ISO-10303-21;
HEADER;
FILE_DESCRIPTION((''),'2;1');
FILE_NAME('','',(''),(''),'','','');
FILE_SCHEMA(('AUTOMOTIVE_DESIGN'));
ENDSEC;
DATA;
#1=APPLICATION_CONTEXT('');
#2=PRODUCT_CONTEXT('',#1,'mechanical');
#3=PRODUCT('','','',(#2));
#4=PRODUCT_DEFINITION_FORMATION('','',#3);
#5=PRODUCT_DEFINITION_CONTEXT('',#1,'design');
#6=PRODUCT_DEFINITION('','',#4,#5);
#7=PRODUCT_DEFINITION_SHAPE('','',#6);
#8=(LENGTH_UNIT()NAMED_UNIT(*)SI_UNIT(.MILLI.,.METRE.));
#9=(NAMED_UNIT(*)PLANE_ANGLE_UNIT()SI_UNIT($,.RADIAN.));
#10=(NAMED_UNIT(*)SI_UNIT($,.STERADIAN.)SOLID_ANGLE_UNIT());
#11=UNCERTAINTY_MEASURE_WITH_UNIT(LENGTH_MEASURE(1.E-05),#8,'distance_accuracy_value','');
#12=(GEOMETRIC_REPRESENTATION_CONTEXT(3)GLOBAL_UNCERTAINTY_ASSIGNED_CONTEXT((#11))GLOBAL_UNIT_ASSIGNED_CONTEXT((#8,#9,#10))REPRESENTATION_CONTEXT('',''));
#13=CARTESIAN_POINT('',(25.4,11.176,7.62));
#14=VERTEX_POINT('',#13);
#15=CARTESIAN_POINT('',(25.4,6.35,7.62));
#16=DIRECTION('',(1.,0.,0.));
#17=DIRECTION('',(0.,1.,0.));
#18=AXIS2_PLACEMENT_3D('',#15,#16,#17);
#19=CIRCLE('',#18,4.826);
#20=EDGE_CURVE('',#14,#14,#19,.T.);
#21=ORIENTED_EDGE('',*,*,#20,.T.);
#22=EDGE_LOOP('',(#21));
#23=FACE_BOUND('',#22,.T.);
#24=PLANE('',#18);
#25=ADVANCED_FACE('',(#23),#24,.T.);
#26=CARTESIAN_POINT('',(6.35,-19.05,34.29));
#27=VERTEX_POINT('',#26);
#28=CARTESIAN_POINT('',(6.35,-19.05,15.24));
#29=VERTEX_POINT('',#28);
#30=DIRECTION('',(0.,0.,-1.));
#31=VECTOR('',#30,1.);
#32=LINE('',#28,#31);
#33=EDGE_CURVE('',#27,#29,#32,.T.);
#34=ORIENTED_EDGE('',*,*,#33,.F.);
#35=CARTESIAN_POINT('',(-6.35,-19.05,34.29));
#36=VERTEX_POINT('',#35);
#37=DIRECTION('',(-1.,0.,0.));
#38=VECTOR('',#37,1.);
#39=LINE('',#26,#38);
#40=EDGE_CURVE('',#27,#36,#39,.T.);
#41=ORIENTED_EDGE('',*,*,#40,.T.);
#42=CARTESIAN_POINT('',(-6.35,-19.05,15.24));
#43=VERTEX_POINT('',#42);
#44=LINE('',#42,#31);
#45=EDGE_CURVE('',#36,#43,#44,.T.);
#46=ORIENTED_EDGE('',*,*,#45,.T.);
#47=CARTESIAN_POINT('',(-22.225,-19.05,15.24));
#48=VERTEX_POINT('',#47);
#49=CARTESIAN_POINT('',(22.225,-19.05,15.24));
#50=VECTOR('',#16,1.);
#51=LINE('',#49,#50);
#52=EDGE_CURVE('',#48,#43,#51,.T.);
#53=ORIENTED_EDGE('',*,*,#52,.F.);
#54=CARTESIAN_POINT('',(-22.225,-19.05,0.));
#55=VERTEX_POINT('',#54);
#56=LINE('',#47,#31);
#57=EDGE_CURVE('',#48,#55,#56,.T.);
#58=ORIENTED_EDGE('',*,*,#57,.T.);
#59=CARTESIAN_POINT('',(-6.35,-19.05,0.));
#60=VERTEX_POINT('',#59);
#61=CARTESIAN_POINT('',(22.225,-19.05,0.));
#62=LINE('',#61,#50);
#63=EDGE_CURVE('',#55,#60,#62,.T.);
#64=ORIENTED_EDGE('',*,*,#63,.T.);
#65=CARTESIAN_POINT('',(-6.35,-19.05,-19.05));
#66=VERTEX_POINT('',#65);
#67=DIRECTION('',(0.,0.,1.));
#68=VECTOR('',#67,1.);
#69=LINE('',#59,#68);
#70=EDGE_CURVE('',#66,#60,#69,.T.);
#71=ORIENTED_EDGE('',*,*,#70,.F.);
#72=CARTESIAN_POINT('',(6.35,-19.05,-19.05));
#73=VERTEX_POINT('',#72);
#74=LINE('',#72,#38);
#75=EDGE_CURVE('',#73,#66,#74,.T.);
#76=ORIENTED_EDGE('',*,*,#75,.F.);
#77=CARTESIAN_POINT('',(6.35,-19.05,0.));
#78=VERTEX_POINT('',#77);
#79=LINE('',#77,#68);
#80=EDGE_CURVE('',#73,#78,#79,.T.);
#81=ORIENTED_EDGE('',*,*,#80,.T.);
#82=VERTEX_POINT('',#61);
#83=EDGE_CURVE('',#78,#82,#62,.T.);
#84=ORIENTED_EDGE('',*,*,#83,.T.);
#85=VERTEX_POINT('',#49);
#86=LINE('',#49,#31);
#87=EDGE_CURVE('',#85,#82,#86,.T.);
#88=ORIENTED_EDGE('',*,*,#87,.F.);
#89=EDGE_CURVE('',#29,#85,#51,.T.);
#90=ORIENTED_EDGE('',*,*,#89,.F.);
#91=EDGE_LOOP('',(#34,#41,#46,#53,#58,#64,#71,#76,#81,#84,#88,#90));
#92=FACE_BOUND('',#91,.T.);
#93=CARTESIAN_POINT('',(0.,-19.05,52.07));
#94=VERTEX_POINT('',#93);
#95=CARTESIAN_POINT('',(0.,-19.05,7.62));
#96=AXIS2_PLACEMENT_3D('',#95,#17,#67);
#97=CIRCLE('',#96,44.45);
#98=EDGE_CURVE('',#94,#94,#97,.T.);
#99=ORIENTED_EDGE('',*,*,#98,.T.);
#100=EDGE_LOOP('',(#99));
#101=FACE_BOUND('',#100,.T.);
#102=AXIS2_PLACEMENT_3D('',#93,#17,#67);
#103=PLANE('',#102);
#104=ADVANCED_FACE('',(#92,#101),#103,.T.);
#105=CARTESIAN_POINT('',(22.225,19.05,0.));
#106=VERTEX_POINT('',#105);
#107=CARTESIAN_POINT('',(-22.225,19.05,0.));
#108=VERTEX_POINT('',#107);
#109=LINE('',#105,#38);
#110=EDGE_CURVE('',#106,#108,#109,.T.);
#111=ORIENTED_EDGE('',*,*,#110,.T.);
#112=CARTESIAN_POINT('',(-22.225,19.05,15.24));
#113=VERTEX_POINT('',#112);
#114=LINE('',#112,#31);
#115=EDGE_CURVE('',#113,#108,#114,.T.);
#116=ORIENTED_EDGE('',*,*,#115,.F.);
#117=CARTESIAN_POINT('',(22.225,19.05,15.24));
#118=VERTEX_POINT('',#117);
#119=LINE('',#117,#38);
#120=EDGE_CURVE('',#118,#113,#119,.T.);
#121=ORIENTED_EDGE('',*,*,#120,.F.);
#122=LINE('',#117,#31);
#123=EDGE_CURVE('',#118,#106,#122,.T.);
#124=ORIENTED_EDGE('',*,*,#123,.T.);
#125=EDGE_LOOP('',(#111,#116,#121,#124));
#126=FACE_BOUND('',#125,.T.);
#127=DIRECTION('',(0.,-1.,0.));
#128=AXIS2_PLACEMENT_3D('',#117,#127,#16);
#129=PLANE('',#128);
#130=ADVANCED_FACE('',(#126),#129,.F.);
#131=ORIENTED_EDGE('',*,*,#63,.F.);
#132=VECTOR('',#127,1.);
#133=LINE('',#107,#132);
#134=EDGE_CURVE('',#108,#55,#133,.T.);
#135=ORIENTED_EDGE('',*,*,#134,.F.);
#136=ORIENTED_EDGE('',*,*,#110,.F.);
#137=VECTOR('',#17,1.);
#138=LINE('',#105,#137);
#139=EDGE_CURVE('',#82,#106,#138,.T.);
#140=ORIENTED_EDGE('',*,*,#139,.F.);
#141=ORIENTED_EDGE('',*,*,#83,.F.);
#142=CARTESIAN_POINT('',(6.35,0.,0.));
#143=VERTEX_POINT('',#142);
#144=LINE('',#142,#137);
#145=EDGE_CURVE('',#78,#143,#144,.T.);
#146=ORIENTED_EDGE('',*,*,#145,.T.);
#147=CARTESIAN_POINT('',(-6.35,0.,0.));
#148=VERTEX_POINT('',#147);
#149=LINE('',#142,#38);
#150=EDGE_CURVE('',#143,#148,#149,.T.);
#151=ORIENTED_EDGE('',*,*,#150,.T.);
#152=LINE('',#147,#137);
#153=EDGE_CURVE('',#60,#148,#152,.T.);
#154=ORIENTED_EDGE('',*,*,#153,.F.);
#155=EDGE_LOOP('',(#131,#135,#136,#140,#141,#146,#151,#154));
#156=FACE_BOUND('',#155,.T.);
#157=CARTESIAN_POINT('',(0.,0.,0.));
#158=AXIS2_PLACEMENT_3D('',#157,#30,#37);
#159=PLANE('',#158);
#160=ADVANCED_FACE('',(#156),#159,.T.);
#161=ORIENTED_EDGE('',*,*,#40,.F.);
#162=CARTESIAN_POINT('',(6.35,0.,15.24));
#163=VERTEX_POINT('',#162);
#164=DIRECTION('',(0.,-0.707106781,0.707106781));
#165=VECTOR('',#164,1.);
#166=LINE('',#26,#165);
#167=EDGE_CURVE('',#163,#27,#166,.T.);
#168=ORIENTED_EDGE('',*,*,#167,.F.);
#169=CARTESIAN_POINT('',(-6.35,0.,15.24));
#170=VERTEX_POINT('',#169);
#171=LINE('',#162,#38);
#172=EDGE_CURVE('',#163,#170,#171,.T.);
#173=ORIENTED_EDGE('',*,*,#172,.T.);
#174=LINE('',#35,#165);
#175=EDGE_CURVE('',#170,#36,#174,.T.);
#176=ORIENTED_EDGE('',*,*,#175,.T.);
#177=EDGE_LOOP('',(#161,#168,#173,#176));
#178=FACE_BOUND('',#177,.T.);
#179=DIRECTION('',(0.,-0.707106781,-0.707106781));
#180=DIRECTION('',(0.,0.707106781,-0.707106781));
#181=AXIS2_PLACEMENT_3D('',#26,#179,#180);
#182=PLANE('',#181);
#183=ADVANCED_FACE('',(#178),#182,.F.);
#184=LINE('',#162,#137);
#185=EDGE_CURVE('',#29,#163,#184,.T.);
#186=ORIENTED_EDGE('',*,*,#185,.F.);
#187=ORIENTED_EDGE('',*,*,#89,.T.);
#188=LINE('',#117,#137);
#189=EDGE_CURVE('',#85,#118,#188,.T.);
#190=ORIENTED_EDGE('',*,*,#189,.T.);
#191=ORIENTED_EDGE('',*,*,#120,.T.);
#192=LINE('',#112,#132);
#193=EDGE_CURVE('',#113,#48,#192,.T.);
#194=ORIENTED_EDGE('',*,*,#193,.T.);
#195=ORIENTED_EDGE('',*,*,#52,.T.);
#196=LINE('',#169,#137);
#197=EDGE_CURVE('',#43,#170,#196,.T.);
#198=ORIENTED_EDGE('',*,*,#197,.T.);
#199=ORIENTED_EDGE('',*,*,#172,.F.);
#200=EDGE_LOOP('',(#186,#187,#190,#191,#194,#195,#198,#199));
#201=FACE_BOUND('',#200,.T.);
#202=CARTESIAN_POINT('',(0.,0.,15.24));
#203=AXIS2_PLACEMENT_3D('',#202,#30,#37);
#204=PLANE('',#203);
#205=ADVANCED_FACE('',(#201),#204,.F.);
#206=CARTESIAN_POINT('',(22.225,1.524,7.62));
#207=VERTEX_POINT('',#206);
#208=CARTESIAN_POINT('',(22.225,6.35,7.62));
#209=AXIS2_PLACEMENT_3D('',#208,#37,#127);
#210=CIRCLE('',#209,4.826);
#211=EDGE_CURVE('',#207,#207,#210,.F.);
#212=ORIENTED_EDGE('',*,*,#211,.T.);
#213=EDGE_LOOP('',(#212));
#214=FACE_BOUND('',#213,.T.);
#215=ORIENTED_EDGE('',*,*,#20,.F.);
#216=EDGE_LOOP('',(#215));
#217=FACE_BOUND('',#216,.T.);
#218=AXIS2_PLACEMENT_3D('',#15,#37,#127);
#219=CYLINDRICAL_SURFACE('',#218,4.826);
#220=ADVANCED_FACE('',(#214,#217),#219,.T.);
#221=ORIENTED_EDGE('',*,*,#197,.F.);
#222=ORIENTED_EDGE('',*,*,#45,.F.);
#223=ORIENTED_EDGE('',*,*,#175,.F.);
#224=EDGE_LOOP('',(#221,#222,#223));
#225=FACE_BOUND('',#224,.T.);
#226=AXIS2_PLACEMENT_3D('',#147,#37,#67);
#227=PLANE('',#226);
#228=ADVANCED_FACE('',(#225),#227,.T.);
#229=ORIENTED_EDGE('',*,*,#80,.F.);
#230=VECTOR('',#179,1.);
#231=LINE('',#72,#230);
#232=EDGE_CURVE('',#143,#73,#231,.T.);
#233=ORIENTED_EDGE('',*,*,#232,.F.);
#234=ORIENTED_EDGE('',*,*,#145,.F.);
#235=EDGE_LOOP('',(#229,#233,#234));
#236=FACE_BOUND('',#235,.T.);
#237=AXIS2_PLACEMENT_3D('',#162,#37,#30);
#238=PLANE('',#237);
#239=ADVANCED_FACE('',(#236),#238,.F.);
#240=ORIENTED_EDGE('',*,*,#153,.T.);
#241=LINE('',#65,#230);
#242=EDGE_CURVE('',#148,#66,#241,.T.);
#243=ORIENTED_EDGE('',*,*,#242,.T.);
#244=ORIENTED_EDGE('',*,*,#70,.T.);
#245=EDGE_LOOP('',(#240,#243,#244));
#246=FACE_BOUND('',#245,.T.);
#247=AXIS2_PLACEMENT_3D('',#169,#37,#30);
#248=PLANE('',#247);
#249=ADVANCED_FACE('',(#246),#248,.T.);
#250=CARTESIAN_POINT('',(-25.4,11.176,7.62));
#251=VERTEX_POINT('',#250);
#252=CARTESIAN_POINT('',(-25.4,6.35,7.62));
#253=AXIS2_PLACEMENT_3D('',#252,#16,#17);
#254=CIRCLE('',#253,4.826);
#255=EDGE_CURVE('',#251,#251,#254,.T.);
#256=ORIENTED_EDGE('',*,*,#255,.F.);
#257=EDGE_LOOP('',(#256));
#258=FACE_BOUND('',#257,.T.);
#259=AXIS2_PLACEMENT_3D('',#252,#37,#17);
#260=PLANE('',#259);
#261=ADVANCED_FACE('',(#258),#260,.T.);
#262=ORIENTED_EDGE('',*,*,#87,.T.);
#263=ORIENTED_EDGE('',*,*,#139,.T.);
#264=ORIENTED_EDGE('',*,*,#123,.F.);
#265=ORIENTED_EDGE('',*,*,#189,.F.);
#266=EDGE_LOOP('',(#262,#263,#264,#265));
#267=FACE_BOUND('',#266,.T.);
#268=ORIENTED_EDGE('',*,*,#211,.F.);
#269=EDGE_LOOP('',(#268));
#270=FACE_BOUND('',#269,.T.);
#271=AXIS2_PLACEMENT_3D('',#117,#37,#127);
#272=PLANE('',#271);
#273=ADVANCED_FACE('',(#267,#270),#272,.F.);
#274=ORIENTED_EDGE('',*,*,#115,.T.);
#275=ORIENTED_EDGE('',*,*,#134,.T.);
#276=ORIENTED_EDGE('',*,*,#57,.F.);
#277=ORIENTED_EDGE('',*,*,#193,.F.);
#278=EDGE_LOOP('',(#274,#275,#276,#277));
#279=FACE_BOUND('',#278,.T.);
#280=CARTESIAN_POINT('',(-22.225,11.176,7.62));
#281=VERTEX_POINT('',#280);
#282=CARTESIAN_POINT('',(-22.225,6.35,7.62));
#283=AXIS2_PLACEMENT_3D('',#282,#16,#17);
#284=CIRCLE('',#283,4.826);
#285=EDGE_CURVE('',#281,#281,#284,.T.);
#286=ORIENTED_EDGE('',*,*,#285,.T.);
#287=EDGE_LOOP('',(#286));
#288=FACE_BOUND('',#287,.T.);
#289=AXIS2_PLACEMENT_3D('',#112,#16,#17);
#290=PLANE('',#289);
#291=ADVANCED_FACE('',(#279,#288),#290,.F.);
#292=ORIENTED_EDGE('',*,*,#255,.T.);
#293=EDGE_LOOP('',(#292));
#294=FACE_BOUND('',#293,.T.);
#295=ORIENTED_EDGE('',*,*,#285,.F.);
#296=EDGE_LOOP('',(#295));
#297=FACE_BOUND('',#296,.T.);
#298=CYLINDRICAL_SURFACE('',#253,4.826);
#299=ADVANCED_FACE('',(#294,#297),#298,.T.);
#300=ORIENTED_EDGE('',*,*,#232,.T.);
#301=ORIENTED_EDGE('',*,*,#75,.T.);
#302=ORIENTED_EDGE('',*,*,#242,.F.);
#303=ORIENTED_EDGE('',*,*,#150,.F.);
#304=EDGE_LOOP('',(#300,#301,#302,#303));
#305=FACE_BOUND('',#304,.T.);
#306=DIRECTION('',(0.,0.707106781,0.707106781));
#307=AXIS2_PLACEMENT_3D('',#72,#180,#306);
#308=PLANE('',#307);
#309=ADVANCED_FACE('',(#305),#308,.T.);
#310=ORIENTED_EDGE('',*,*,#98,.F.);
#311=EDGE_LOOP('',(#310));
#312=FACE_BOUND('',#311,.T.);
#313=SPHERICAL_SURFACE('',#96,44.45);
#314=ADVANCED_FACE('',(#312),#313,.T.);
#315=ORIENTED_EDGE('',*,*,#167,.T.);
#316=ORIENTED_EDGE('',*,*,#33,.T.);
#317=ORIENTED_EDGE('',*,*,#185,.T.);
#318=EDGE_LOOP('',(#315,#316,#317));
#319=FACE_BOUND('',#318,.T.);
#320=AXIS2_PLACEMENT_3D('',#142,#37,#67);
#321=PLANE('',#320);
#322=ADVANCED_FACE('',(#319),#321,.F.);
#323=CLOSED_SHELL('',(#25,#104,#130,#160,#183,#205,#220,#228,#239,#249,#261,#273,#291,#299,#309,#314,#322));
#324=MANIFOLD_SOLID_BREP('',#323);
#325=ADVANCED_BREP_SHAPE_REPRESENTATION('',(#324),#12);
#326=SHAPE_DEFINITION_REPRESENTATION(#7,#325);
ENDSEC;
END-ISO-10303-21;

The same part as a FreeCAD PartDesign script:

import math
import FreeCAD as App
import Part
import Sketcher
Q = App.Units.Quantity

doc = App.newDocument("Part")
body = doc.addObject("PartDesign::Body", "Body")

# Sketch on XY plane
sketch1 = body.newObject("Sketcher::SketchObject", "Sketch")
sketch1.AttachmentSupport = (doc.getObject("XY_Plane"), [""])
sketch1.MapMode = "FlatFace"
sketch1.addGeometry([
    Part.LineSegment(App.Vector(-22, 19, 0), App.Vector(-22, -19, 0)),
    Part.LineSegment(App.Vector(-22, -19, 0), App.Vector(22, -19, 0)),
    Part.LineSegment(App.Vector(22, -19, 0), App.Vector(22, 19, 0)),
    Part.LineSegment(App.Vector(22, 19, 0), App.Vector(-22, 19, 0)),
], False)
sketch1.addConstraint([
    Sketcher.Constraint("Coincident", 0, 2, 1, 1),
    Sketcher.Constraint("Coincident", 1, 2, 2, 1),
    Sketcher.Constraint("Coincident", 2, 2, 3, 1),
    Sketcher.Constraint("Coincident", 3, 2, 0, 1),
    Sketcher.Constraint("Vertical", 0),
    Sketcher.Constraint("Horizontal", 1),
    Sketcher.Constraint("Vertical", 2),
    Sketcher.Constraint("Horizontal", 3),
    Sketcher.Constraint("Symmetric", 0, 2, 2, 2, -1, 1),
    Sketcher.Constraint("DistanceY", 0, 2, 0, 1, Q("1.5 in")),
    Sketcher.Constraint("DistanceX", 1, 1, 1, 2, Q("1.75 in")),
])
pad1 = body.newObject("PartDesign::Pad", "Pad")
pad1.Profile = sketch1
pad1.Length = Q("0.6 in")

# Sketch on YZ plane
sketch2 = body.newObject("Sketcher::SketchObject", "Sketch001")
sketch2.AttachmentSupport = (doc.getObject("YZ_Plane"), [""])
sketch2.MapMode = "FlatFace"
sketch2.AttachmentOffset = App.Placement(App.Vector(0, 0, 0.875 * 25.4), App.Rotation())
sketch2.addGeometry(Part.Circle(App.Vector(6.3, 7.6, 0), App.Vector(0, 0, 1), 4.8), False)
sketch2.addConstraint([
    Sketcher.Constraint("Diameter", 0, Q("0.38 in")),
    Sketcher.Constraint("DistanceY", -1, 1, 0, 3, Q("0.3 in")),
    Sketcher.Constraint("DistanceX", -1, 1, 0, 3, Q("0.25 in")),
])
pad2 = body.newObject("PartDesign::Pad", "Pad001")
pad2.Profile = sketch2
pad2.Length = Q("0.125 in")
doc.recompute()

mirrored = body.newObject("PartDesign::Mirrored", "Mirrored")
mirrored.Originals = [pad2]
mirrored.MirrorPlane = (doc.getObject("YZ_Plane"), [""])
body.Tip = mirrored

# Sketch on YZ plane
sketch3 = body.newObject("Sketcher::SketchObject", "Sketch002")
sketch3.AttachmentSupport = (doc.getObject("YZ_Plane"), [""])
sketch3.MapMode = "FlatFace"
sketch3.addGeometry([
    Part.LineSegment(App.Vector(-19, 8, 0), App.Vector(-19, 52, 0)),
    Part.ArcOfCircle(Part.Circle(App.Vector(-19, 8, 0), App.Vector(0, 0, 1), 44), math.radians(90), math.radians(180)),
    Part.LineSegment(App.Vector(-64, 8, 0), App.Vector(-19, 8, 0)),
], False)
sketch3.addGeometry(Part.LineSegment(App.Vector(-19, 8, 0), App.Vector(-64, 8, 0)), True)  # axis
sketch3.addConstraint([
    Sketcher.Constraint("Coincident", 0, 2, 1, 1),
    Sketcher.Constraint("Coincident", 1, 2, 2, 1),
    Sketcher.Constraint("Coincident", 2, 2, 0, 1),
    Sketcher.Constraint("Vertical", 0),
    Sketcher.Constraint("Horizontal", 2),
    Sketcher.Constraint("Horizontal", 3),
    Sketcher.Constraint("Coincident", 2, 2, 1, 3),
    Sketcher.Constraint("Coincident", 3, 1, 1, 3),
    Sketcher.Constraint("Equal", 2, 3),
    Sketcher.Constraint("Radius", 1, Q("1.75 in")),
    Sketcher.Constraint("DistanceY", -1, 1, 1, 3, Q("0.3 in")),
    Sketcher.Constraint("DistanceX", 1, 2, -1, 1, Q("2.5 in")),
])
revolution = body.newObject("PartDesign::Revolution", "Revolution")
revolution.Profile = sketch3
revolution.ReferenceAxis = (sketch3, ["Axis0"])
revolution.Angle = 360

# Sketch on YZ plane
sketch4 = body.newObject("Sketcher::SketchObject", "Sketch003")
sketch4.AttachmentSupport = (doc.getObject("YZ_Plane"), [""])
sketch4.MapMode = "FlatFace"
sketch4.addGeometry([
    Part.LineSegment(App.Vector(-19, 15, 0), App.Vector(0, 15, 0)),
    Part.LineSegment(App.Vector(0, 15, 0), App.Vector(-19, 34, 0)),
    Part.LineSegment(App.Vector(-19, 34, 0), App.Vector(-19, 15, 0)),
], False)
sketch4.addConstraint([
    Sketcher.Constraint("Coincident", 0, 2, 1, 1),
    Sketcher.Constraint("Coincident", 1, 2, 2, 1),
    Sketcher.Constraint("Coincident", 2, 2, 0, 1),
    Sketcher.Constraint("Horizontal", 0),
    Sketcher.Constraint("Vertical", 2),
    Sketcher.Constraint("PointOnObject", 0, 2, -2),
    Sketcher.Constraint("Equal", 0, 2),
    Sketcher.Constraint("DistanceX", 0, 1, 0, 2, Q("0.75 in")),
    Sketcher.Constraint("DistanceY", -1, 1, 0, 2, Q("0.6 in")),
])
pad3 = body.newObject("PartDesign::Pad", "Pad002")
pad3.Profile = sketch4
pad3.Length = Q("0.5 in")
pad3.Midplane = True
doc.recompute()

datumplane = body.newObject("PartDesign::Plane", "DatumPlane")
datumplane.AttachmentSupport = (doc.getObject("XY_Plane"), [""])
datumplane.MapMode = "FlatFace"
datumplane.AttachmentOffset = App.Placement(App.Vector(0, 0, 0.3 * 25.4), App.Rotation())
mirrored2 = body.newObject("PartDesign::Mirrored", "Mirrored001")
mirrored2.Originals = [pad3]
mirrored2.MirrorPlane = (datumplane, [""])
body.Tip = mirrored2

doc.recompute()
